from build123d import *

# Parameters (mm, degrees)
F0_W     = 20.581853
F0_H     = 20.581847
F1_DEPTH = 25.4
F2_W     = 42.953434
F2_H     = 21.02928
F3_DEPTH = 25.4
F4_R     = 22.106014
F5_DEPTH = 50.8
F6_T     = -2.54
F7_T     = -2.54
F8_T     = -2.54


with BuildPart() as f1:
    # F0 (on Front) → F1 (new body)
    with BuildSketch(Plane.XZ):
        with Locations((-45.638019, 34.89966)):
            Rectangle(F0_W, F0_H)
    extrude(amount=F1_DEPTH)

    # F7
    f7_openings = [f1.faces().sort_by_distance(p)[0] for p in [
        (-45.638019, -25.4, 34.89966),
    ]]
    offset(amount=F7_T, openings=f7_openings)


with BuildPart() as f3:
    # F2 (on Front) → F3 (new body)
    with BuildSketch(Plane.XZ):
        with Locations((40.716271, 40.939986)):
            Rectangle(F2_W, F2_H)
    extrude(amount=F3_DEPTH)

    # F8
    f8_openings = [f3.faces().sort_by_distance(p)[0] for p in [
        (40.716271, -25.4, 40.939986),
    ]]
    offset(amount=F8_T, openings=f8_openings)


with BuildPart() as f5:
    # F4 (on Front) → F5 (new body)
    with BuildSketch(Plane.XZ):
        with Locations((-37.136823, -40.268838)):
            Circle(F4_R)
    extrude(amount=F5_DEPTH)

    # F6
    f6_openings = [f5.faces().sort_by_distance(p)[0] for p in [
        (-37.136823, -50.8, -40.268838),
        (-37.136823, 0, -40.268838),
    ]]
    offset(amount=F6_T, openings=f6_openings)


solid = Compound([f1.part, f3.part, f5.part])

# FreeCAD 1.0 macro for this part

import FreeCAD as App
import Part
import Sketcher

V = App.Vector
Q = App.Units.Quantity


def faces_at(feature, points):
    """Names of the faces that lie closest to the given points."""
    faces = feature.Shape.Faces
    near = lambda p: min(range(len(faces)), key=lambda i: faces[i].distToShape(Part.Vertex(*p))[0])
    return sorted({f"Face{near(p) + 1}" for p in points})


def add_polygon(sketch, points):
    """Adds a closed chain of lines whose ends are joined by coincident constraints."""
    first, n = sketch.GeometryCount, len(points)
    for a, b in zip(points, points[1:] + points[:1]):
        sketch.addGeometry(Part.LineSegment(App.Vector(*a, 0), App.Vector(*b, 0)), False)
    for i in range(n):
        sketch.addConstraint(Sketcher.Constraint("Coincident", first + i, 2, first + (i + 1) % n, 1))

doc = App.newDocument("Part")
body = doc.addObject("PartDesign::Body", "Body")

# Sketch on XZ plane
sketch1 = body.newObject("Sketcher::SketchObject", "Sketch")
sketch1.AttachmentSupport = (doc.getObject("XZ_Plane"), [""])
sketch1.MapMode = "FlatFace"
add_polygon(sketch1, [(-56, 45), (-56, 25), (-35, 25), (-35, 45)])  # lines 0-3
sketch1.addConstraint([
    Sketcher.Constraint("Vertical", 0),
    Sketcher.Constraint("Horizontal", 1),
    Sketcher.Constraint("Vertical", 2),
    Sketcher.Constraint("Horizontal", 3),
    Sketcher.Constraint("DistanceX", 1, 1, 1, 2, 20.581853),
    Sketcher.Constraint("DistanceY", 0, 2, 0, 1, 20.581847),
    Sketcher.Constraint("DistanceX", 0, 2, -1, 1, 55.928945),
    Sketcher.Constraint("DistanceY", -1, 1, 0, 2, 24.608736),
])
pad1 = body.newObject("PartDesign::Pad", "Pad")
pad1.Profile = sketch1
pad1.Length = Q("1 in")
doc.recompute()

thickness = body.newObject("PartDesign::Thickness", "Thickness")
thickness.Base = (pad1, faces_at(pad1, [(-45.638, -25.4, 34.9)]))
thickness.Value = Q("0.1 in")
thickness.Reversed = True
thickness.Join = "Arc"
body2 = doc.addObject("PartDesign::Body", "Body001")

# Sketch on XZ plane
sketch2 = body2.newObject("Sketcher::SketchObject", "Sketch001")
sketch2.AttachmentSupport = (doc.getObject("XZ_Plane001"), [""])
sketch2.MapMode = "FlatFace"
add_polygon(sketch2, [(19, 51), (19, 30), (62, 30), (62, 51)])  # lines 0-3
sketch2.addConstraint([
    Sketcher.Constraint("Vertical", 0),
    Sketcher.Constraint("Horizontal", 1),
    Sketcher.Constraint("Vertical", 2),
    Sketcher.Constraint("Horizontal", 3),
    Sketcher.Constraint("DistanceY", 0, 2, 0, 1, 21.02928),
    Sketcher.Constraint("DistanceX", 1, 1, 1, 2, 42.953434),
    Sketcher.Constraint("DistanceX", -1, 1, 0, 2, 19.239554),
    Sketcher.Constraint("DistanceY", -1, 1, 0, 2, 30.425346),
])
pad2 = body2.newObject("PartDesign::Pad", "Pad001")
pad2.Profile = sketch2
pad2.Length = Q("1 in")
doc.recompute()

thickness2 = body2.newObject("PartDesign::Thickness", "Thickness001")
thickness2.Base = (pad2, faces_at(pad2, [(40.716, -25.4, 40.94)]))
thickness2.Value = Q("0.1 in")
thickness2.Reversed = True
thickness2.Join = "Arc"
body3 = doc.addObject("PartDesign::Body", "Body002")

# Sketch on XZ plane
sketch3 = body3.newObject("Sketcher::SketchObject", "Sketch002")
sketch3.AttachmentSupport = (doc.getObject("XZ_Plane002"), [""])
sketch3.MapMode = "FlatFace"
sketch3.addGeometry(Part.Circle(V(-37, -40, 0), V(0, 0, 1), 22), False)
sketch3.addConstraint([
    Sketcher.Constraint("Diameter", 0, 44.212028),
    Sketcher.Constraint("DistanceY", 0, 3, -1, 1, 40.268838),
    Sketcher.Constraint("DistanceX", 0, 3, -1, 1, 37.136823),
])
pad3 = body3.newObject("PartDesign::Pad", "Pad002")
pad3.Profile = sketch3
pad3.Length = Q("2 in")
doc.recompute()

thickness3 = body3.newObject("PartDesign::Thickness", "Thickness002")
thickness3.Base = (pad3, faces_at(pad3, [(-37.137, -50.8, -40.269), (-37.137, 0, -40.269)]))
thickness3.Value = Q("0.1 in")
thickness3.Reversed = True
thickness3.Join = "Arc"

doc.recompute()
